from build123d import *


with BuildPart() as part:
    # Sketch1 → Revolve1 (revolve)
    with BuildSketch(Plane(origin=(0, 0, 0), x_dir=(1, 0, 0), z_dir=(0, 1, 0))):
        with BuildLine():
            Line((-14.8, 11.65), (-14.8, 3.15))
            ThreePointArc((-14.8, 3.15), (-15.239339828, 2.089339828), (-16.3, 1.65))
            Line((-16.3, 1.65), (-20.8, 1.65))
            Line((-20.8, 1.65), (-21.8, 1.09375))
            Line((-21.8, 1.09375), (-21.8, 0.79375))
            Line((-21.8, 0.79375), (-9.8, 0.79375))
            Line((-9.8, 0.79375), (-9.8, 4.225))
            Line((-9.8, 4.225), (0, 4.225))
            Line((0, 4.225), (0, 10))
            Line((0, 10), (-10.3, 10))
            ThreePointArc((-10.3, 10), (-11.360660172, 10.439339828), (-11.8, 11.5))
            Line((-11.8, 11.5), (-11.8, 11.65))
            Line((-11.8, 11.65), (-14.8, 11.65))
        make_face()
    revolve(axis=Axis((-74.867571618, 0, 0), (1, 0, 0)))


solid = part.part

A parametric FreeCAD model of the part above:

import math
import FreeCAD as App
import Part
import Sketcher
Q = App.Units.Quantity

doc = App.newDocument("Part")
body = doc.addObject("PartDesign::Body", "Body")

sketch1 = doc.addObject("Sketcher::SketchObject", "Sketch")
body.addObject(sketch1)
sketch1.AttachmentSupport = (doc.XZ_Plane, [""])
sketch1.MapMode = "FlatFace"
sketch1.addGeometry([
    Part.LineSegment(App.Vector(-14.8, -11.65, 0), App.Vector(-14.8, -3.15, 0)),
    Part.ArcOfCircle(Part.Circle(App.Vector(-16.3, -3.15, 0), App.Vector(0, 0, 1), 1.5), math.radians(0), math.radians(90)),
    Part.LineSegment(App.Vector(-16.3, -1.65, 0), App.Vector(-20.8, -1.65, 0)),
    Part.LineSegment(App.Vector(-20.8, -1.65, 0), App.Vector(-21.8, -1.09, 0)),
    Part.LineSegment(App.Vector(-21.8, -1.09, 0), App.Vector(-21.8, -0.79, 0)),
    Part.LineSegment(App.Vector(-21.8, -0.79, 0), App.Vector(-9.8, -0.79, 0)),
    Part.LineSegment(App.Vector(-9.8, -0.79, 0), App.Vector(-9.8, -4.22, 0)),
    Part.LineSegment(App.Vector(-9.8, -4.22, 0), App.Vector(0, -4.22, 0)),
    Part.LineSegment(App.Vector(0, -4.22, 0), App.Vector(0, -10, 0)),
    Part.LineSegment(App.Vector(0, -10, 0), App.Vector(-10.3, -10, 0)),
    Part.ArcOfCircle(Part.Circle(App.Vector(-10.3, -11.5, 0), App.Vector(0, 0, 1), 1.5), math.radians(90), math.radians(180)),
    Part.LineSegment(App.Vector(-11.8, -11.5, 0), App.Vector(-11.8, -11.65, 0)),
    Part.LineSegment(App.Vector(-11.8, -11.65, 0), App.Vector(-14.8, -11.65, 0)),
], False)
sketch1.addConstraint([
    Sketcher.Constraint("Tangent", 0, 2, 1, 1),
    Sketcher.Constraint("Tangent", 1, 2, 2, 1),
    Sketcher.Constraint("Coincident", 2, 2, 3, 1),
    Sketcher.Constraint("Coincident", 3, 2, 4, 1),
    Sketcher.Constraint("Coincident", 4, 2, 5, 1),
    Sketcher.Constraint("Coincident", 5, 2, 6, 1),
    Sketcher.Constraint("Coincident", 6, 2, 7, 1),
    Sketcher.Constraint("Coincident", 7, 2, 8, 1),
    Sketcher.Constraint("Coincident", 8, 2, 9, 1),
    Sketcher.Constraint("Tangent", 9, 2, 10, 1),
    Sketcher.Constraint("Tangent", 10, 2, 11, 1),
    Sketcher.Constraint("Coincident", 11, 2, 12, 1),
    Sketcher.Constraint("Coincident", 12, 2, 0, 1),
    Sketcher.Constraint("Vertical", 0),
    Sketcher.Constraint("Horizontal", 2),
    Sketcher.Constraint("Vertical", 4),
    Sketcher.Constraint("Horizontal", 5),
    Sketcher.Constraint("Vertical", 6),
    Sketcher.Constraint("Horizontal", 7),
    Sketcher.Constraint("Vertical", 8),
    Sketcher.Constraint("Horizontal", 9),
    Sketcher.Constraint("Vertical", 11),
    Sketcher.Constraint("Horizontal", 12),
    Sketcher.Constraint("Equal", 1, 10),
    Sketcher.Constraint("PointOnObject", 7, 2, -2),
    Sketcher.Constraint("Radius", 1, Q("1.5 mm")),
    Sketcher.Constraint("DistanceX", 5, 1, 5, 2, Q("12 mm")),
    Sketcher.Constraint("DistanceX", 12, 2, 12, 1, Q("3 mm")),
    Sketcher.Constraint("DistanceX", 2, 2, 2, 1, Q("4.5 mm")),
    Sketcher.Constraint("DistanceX", 7, 1, 7, 2, Q("9.8 mm")),
    Sketcher.Constraint("DistanceX", 9, 2, 9, 1, Q("10.3 mm")),
    Sketcher.Constraint("DistanceY", 0, 1, 0, 2, Q("8.5 mm")),
    Sketcher.Constraint("DistanceY", 4, 1, 4, 2, Q("0.3 mm")),
    Sketcher.Constraint("DistanceY", 8, 2, -1, 1, Q("10 mm")),
    Sketcher.Constraint("DistanceY", 11, 2, 11, 1, Q("0.15 mm")),
    Sketcher.Constraint("DistanceY", 8, 2, 8, 1, Q("5.775 mm")),
    Sketcher.Constraint("DistanceY", 6, 2, 6, 1, Q("3.43125 mm")),
])
revolution = doc.addObject("PartDesign::Revolution", "Revolution")
body.addObject(revolution)
revolution.Profile = sketch1
revolution.ReferenceAxis = (sketch1, ["H_Axis"])
revolution.Angle = 360

doc.recompute()
